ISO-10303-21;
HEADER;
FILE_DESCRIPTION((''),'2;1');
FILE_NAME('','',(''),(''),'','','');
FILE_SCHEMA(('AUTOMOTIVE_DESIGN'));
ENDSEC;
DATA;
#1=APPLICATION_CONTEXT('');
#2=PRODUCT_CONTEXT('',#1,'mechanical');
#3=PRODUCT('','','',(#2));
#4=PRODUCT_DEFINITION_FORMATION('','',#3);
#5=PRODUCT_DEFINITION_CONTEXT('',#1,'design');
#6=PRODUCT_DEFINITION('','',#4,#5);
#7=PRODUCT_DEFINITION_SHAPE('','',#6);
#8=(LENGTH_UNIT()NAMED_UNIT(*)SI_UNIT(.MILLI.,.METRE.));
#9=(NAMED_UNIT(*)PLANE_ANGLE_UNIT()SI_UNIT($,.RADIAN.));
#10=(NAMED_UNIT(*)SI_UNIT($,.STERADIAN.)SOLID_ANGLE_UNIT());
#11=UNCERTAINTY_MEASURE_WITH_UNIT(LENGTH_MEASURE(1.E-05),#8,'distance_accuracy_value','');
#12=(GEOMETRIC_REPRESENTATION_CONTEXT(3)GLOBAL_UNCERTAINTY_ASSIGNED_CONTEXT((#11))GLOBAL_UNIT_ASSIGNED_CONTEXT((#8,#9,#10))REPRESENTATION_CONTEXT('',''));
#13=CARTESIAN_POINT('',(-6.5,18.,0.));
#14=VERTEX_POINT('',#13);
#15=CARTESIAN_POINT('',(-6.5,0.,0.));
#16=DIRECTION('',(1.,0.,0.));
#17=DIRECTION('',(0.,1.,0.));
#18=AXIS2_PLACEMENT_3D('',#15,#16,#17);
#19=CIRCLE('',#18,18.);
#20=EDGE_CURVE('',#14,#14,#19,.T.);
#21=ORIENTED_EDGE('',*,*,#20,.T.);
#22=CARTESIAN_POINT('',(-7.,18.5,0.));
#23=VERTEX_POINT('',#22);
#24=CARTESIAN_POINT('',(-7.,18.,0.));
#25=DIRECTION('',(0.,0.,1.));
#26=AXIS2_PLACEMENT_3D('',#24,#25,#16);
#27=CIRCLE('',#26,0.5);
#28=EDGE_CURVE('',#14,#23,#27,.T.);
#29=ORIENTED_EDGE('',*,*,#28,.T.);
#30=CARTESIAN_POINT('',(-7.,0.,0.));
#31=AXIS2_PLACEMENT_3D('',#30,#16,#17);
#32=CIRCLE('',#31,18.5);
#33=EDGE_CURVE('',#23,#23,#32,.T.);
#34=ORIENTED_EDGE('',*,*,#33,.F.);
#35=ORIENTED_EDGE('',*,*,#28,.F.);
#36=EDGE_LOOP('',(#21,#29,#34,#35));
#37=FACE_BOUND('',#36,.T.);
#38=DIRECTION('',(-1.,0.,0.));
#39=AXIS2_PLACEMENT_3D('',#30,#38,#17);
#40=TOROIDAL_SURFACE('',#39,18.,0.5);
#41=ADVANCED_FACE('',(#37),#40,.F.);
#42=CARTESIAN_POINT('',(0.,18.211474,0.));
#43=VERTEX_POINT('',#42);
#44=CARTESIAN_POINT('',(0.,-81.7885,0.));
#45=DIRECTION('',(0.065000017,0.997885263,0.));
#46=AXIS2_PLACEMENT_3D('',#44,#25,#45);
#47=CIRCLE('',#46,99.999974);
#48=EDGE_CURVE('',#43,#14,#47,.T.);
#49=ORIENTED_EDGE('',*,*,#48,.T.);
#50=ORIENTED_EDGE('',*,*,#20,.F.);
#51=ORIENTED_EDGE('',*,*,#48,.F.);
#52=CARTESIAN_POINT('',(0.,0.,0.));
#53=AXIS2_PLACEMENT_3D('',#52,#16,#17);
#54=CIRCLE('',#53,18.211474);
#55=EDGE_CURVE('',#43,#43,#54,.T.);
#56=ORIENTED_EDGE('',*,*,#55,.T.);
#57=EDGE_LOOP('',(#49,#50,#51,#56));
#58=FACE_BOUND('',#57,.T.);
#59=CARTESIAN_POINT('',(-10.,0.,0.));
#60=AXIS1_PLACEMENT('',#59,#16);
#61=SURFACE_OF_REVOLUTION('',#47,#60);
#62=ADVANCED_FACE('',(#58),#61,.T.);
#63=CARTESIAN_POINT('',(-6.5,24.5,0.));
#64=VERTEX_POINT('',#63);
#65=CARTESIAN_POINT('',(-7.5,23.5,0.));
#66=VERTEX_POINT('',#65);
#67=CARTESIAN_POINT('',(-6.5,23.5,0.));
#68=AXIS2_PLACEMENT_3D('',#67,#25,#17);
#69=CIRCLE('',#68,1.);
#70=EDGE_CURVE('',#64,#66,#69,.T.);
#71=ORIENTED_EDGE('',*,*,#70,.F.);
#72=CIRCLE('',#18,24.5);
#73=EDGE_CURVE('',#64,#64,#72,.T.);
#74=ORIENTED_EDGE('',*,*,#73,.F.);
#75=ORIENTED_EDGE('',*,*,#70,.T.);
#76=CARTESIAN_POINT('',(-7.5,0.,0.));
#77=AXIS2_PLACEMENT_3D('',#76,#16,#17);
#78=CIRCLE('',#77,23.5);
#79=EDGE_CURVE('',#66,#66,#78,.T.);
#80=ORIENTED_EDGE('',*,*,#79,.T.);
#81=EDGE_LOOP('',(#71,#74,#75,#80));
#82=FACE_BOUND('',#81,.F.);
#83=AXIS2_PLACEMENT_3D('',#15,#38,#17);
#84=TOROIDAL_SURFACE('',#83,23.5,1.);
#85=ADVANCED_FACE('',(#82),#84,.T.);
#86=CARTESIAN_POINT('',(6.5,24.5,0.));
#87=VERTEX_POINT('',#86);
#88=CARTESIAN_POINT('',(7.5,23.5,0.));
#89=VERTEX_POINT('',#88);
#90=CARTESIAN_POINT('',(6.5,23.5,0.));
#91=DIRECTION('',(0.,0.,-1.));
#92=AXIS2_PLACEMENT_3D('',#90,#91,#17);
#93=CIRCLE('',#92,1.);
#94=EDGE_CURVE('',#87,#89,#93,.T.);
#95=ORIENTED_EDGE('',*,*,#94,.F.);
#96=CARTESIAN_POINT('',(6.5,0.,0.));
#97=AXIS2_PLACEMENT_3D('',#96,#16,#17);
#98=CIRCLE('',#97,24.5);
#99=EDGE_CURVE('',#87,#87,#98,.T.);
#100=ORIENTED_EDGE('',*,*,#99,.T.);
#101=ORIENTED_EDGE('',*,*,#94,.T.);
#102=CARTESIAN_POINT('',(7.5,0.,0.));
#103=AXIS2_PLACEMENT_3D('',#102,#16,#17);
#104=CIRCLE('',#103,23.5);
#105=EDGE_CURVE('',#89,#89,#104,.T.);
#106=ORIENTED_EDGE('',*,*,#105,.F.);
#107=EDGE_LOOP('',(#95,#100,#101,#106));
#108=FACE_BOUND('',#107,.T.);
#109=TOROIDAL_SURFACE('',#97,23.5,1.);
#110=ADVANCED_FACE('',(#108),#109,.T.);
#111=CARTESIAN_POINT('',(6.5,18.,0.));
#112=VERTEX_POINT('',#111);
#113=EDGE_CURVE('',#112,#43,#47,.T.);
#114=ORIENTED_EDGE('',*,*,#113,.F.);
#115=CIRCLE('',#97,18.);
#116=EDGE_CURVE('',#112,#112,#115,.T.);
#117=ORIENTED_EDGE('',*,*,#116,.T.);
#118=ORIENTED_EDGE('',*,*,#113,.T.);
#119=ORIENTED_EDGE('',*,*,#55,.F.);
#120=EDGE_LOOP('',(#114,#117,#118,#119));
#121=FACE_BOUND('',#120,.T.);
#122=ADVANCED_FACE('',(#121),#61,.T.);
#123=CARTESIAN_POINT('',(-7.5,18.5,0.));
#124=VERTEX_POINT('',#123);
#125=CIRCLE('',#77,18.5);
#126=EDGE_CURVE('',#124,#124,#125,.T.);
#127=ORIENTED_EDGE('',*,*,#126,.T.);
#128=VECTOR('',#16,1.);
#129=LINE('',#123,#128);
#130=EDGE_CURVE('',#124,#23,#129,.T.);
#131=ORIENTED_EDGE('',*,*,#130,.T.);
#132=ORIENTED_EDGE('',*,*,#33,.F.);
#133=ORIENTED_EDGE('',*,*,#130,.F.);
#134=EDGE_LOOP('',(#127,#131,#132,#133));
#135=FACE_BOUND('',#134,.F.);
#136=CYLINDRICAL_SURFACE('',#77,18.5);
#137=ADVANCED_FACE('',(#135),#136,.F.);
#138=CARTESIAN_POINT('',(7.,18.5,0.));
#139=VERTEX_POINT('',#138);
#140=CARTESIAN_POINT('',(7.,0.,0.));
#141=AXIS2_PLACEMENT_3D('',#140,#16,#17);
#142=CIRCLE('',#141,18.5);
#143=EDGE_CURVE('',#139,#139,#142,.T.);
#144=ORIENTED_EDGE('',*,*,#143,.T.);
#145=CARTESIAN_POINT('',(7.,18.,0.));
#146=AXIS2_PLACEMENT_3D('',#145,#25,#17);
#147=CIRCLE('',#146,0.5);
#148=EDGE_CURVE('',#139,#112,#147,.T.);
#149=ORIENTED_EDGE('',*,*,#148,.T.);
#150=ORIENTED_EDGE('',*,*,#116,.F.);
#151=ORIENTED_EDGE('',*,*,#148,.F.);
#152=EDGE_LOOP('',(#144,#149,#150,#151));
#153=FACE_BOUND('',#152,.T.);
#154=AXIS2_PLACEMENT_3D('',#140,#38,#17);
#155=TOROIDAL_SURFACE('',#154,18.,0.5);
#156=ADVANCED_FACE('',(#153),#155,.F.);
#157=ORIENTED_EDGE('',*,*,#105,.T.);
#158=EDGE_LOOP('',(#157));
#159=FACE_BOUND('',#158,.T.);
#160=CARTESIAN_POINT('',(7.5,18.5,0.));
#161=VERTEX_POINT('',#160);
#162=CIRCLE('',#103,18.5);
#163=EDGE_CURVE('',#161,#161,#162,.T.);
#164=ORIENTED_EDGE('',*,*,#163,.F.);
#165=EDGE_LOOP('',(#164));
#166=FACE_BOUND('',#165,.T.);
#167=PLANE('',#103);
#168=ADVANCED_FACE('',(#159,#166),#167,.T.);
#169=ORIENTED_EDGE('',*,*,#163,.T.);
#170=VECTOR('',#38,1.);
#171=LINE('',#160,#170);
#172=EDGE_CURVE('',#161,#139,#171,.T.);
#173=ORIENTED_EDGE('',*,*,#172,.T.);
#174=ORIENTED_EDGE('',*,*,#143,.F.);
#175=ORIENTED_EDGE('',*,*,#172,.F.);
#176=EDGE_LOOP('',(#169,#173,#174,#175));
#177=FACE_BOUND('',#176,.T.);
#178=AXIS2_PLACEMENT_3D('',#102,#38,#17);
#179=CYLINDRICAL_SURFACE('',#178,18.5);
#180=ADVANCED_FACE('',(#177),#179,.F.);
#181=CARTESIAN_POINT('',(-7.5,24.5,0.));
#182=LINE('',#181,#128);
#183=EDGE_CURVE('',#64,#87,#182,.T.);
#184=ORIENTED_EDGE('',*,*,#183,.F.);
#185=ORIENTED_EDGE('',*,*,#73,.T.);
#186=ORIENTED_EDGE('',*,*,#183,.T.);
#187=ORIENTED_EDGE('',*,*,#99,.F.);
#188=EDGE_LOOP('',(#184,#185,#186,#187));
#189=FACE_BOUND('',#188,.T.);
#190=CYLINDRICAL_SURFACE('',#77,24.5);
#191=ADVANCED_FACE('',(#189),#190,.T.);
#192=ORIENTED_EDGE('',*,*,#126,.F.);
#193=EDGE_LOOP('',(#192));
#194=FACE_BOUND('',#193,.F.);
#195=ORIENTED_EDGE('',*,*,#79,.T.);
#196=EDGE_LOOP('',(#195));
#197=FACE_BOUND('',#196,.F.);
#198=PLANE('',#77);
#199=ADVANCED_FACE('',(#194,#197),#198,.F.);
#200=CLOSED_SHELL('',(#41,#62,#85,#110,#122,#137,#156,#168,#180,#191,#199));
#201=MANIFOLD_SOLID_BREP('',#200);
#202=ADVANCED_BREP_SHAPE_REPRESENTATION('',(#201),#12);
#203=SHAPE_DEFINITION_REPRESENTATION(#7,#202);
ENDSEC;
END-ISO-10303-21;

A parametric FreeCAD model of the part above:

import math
import FreeCAD as App
import Part
import Sketcher


def edges_at(feature, points):
    """Names of the edges that pass closest to the given points."""
    edges = feature.Shape.Edges
    near = lambda p: min(range(len(edges)), key=lambda i: edges[i].distToShape(Part.Vertex(*p))[0])
    return sorted({f"Edge{near(p) + 1}" for p in points})

doc = App.newDocument("Part")
body = doc.addObject("PartDesign::Body", "Body")

# Sketch on XY plane
sketch1 = doc.addObject("Sketcher::SketchObject", "Sketch")
body.addObject(sketch1)
sketch1.AttachmentSupport = (doc.XY_Plane, [""])
sketch1.MapMode = "FlatFace"
sketch1.addGeometry([
    Part.LineSegment(App.Vector(-7.5, 24.5, 0), App.Vector(-7.5, 18.5, 0)),  # 0
    Part.LineSegment(App.Vector(-7.5, 18.5, 0), App.Vector(-7, 18.5, 0)),  # 1
    Part.ArcOfCircle(Part.Circle(App.Vector(-7, 18, 0), App.Vector(0, 0, 1), 0.5), math.radians(0), math.radians(90)),  # 2
    Part.ArcOfCircle(Part.Circle(App.Vector(0, -81.7885, 0), App.Vector(0, 0, 1), 99.999974), math.radians(86.273146), math.radians(93.726854)),  # 3
    Part.ArcOfCircle(Part.Circle(App.Vector(7, 18, 0), App.Vector(0, 0, 1), 0.5), math.radians(90), math.radians(180)),  # 4
    Part.LineSegment(App.Vector(7, 18.5, 0), App.Vector(7.5, 18.5, 0)),  # 5
    Part.LineSegment(App.Vector(7.5, 18.5, 0), App.Vector(7.5, 24.5, 0)),  # 6
    Part.LineSegment(App.Vector(7.5, 24.5, 0), App.Vector(-7.5, 24.5, 0)),  # 7
], False)
sketch1.addConstraint([
    Sketcher.Constraint("Coincident", 0, 2, 1, 1),
    Sketcher.Constraint("Tangent", 1, 2, 2, 2),
    Sketcher.Constraint("Coincident", 2, 1, 3, 2),
    Sketcher.Constraint("Coincident", 3, 1, 4, 2),
    Sketcher.Constraint("Tangent", 4, 1, 5, 1),
    Sketcher.Constraint("Coincident", 5, 2, 6, 1),
    Sketcher.Constraint("Coincident", 6, 2, 7, 1),
    Sketcher.Constraint("Coincident", 7, 2, 0, 1),
    Sketcher.Constraint("Vertical", 0),
    Sketcher.Constraint("Horizontal", 1),
    Sketcher.Constraint("Horizontal", 5),
    Sketcher.Constraint("Vertical", 6),
    Sketcher.Constraint("Horizontal", 7),
    Sketcher.Constraint("Equal", 2, 4),
    Sketcher.Constraint("Symmetric", 2, 3, 4, 3, -2),
    Sketcher.Constraint("PointOnObject", 3, 3, -2),
    Sketcher.Constraint("Horizontal", 4, 3, 2, 1),
    Sketcher.Constraint("Equal", 1, 5),
    Sketcher.Constraint("Radius", 3, 100.0),
    Sketcher.Constraint("Radius", 2, 0.5),
    Sketcher.Constraint("DistanceX", 7, 2, 7, 1, 15.0),
    Sketcher.Constraint("DistanceY", 0, 2, 0, 1, 6.0),
    Sketcher.Constraint("DistanceX", 1, 1, 1, 2, 0.5),
    Sketcher.Constraint("DistanceY", -1, 1, 2, 3, 18.0),
])
revolution = doc.addObject("PartDesign::Revolution", "Revolution")
body.addObject(revolution)
revolution.Profile = sketch1
revolution.ReferenceAxis = (sketch1, ["H_Axis"])
revolution.Angle = 360
doc.recompute()

fillet = doc.addObject("PartDesign::Fillet", "Fillet")
body.addObject(fillet)
fillet.Base = (revolution, edges_at(revolution, [(-7.5, -24.5, 0), (7.5, -24.5, 0)]))
fillet.Radius = 1

doc.recompute()
